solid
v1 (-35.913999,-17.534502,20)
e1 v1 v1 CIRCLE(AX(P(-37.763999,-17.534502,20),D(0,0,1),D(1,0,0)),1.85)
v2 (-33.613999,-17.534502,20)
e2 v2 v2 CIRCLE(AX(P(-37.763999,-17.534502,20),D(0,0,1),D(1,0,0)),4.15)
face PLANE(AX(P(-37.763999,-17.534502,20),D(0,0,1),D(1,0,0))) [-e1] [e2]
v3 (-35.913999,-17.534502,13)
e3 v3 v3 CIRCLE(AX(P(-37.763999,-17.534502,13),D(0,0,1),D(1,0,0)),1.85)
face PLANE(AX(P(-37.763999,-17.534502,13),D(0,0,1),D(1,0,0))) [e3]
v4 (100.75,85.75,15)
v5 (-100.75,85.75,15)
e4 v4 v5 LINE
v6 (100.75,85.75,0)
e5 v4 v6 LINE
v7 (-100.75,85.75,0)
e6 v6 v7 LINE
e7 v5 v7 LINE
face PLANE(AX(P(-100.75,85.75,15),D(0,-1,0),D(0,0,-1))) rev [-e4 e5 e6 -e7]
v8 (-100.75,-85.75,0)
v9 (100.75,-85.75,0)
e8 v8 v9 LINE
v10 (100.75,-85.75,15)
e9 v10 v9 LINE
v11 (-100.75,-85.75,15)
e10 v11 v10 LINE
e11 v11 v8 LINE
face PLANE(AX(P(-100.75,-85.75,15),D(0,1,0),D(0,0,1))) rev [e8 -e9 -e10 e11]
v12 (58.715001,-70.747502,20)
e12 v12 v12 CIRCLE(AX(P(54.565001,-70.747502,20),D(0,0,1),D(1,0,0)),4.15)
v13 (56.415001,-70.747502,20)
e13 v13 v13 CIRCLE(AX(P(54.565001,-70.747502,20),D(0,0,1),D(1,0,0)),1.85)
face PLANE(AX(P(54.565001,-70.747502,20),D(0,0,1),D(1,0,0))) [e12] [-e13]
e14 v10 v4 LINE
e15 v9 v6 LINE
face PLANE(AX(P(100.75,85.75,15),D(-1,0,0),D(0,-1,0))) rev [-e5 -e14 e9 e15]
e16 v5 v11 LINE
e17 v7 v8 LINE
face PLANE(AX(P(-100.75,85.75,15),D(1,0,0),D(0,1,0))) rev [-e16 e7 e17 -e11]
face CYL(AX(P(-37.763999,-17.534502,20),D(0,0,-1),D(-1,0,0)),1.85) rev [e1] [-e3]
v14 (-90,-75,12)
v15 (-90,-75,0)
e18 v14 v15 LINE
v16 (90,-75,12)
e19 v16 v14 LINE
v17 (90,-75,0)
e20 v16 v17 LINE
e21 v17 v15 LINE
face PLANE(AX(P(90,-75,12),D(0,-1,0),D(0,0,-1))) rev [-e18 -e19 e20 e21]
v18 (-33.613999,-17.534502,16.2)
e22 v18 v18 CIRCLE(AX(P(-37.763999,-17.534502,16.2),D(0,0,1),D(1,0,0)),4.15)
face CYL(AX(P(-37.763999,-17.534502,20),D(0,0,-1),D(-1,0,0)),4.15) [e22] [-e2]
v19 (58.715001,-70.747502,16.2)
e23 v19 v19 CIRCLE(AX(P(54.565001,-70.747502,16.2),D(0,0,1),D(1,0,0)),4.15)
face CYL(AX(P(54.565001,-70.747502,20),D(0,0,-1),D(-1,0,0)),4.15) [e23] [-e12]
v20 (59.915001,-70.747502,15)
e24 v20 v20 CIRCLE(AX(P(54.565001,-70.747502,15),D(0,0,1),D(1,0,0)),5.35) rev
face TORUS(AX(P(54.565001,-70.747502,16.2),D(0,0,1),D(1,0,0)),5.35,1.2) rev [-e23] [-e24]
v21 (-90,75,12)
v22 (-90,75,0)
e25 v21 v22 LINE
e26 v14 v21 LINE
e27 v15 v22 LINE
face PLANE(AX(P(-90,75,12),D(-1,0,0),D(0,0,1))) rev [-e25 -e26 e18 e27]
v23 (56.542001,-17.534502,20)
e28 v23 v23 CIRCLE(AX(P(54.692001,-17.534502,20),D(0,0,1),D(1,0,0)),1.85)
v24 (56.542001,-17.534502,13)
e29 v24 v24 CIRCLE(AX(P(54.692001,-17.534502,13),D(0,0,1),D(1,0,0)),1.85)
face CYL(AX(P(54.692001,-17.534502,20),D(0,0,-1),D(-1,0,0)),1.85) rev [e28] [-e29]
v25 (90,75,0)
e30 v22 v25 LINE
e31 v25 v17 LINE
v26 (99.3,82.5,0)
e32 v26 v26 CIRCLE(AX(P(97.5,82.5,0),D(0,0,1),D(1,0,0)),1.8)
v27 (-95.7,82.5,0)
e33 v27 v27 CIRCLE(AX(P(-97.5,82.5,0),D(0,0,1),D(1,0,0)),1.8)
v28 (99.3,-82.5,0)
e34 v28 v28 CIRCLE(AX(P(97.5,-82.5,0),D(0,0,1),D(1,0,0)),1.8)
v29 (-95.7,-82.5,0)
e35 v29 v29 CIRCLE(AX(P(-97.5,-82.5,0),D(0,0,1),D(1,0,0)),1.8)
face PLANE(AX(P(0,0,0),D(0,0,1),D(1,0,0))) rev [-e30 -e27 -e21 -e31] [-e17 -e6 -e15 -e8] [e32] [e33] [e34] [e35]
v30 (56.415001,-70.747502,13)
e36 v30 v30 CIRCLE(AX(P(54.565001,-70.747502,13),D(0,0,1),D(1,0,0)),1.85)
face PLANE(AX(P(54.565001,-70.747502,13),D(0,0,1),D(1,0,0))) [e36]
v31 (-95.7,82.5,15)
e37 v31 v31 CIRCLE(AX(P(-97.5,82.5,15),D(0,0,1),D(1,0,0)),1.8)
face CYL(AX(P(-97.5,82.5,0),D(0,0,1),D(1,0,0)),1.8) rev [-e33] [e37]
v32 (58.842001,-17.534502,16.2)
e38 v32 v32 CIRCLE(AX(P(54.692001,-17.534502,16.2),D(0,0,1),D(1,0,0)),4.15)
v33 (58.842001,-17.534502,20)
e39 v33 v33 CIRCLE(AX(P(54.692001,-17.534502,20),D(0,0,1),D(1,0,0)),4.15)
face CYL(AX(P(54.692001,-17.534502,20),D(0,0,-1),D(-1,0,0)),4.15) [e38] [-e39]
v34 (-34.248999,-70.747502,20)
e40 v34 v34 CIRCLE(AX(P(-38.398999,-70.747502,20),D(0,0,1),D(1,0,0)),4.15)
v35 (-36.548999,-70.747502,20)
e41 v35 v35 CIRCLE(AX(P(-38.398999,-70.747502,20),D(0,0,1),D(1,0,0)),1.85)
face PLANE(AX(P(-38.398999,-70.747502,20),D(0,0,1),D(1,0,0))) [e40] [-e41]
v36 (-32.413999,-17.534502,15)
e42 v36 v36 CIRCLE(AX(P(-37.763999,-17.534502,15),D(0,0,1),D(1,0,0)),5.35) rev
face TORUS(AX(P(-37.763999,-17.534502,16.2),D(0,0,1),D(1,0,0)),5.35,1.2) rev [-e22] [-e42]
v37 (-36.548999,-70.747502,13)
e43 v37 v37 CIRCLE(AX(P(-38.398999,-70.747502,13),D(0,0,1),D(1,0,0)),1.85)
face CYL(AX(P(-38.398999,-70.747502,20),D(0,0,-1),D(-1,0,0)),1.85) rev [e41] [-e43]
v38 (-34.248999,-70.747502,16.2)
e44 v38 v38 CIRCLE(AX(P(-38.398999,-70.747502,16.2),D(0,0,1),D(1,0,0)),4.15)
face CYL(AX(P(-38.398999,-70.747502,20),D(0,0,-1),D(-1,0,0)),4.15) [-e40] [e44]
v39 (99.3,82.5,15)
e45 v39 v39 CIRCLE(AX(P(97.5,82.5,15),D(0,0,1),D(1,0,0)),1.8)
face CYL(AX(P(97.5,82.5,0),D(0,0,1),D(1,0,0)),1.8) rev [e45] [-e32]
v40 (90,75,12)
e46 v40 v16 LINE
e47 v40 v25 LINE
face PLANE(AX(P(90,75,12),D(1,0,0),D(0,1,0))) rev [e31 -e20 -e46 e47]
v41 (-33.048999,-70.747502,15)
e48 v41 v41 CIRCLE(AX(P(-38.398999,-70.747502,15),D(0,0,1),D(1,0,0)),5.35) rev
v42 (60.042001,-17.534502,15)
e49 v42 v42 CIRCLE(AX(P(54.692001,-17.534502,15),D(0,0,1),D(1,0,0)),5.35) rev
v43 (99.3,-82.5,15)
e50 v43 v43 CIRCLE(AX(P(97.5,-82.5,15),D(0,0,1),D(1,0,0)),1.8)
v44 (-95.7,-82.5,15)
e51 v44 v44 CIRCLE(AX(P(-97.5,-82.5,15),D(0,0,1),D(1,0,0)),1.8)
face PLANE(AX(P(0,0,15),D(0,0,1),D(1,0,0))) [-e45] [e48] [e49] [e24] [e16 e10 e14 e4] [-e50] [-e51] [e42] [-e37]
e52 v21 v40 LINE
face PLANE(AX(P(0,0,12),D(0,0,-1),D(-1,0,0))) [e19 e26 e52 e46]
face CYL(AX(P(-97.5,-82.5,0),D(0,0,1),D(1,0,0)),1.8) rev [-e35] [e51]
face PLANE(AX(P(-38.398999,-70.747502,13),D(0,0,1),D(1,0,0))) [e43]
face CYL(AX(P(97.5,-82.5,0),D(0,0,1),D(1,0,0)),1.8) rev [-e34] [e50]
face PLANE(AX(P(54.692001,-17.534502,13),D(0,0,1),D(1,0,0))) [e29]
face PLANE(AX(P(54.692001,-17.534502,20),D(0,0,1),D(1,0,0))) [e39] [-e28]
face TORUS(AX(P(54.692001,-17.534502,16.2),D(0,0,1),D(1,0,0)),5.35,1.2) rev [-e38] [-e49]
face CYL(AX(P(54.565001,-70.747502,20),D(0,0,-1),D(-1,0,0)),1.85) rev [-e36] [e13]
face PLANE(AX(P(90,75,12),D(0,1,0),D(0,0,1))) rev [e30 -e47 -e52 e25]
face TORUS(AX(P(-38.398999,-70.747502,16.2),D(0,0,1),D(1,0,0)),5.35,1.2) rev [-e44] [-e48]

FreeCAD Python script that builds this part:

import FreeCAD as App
import Part
import Sketcher

V = App.Vector
Q = App.Units.Quantity


def edges_at(feature, points):
    """Names of the edges that pass closest to the given points."""
    edges = feature.Shape.Edges
    near = lambda p: min(range(len(edges)), key=lambda i: edges[i].distToShape(Part.Vertex(*p))[0])
    return sorted({f"Edge{near(p) + 1}" for p in points})

doc = App.newDocument("Part")
body = doc.addObject("PartDesign::Body", "Body")

# Sketch on XY plane
sketch1 = body.newObject("Sketcher::SketchObject", "Sketch")
sketch1.AttachmentSupport = (doc.getObject("XY_Plane"), [""])
sketch1.MapMode = "FlatFace"
sketch1.addGeometry([
    Part.LineSegment(V(-101, 86, 0), V(-101, -86, 0)),
    Part.LineSegment(V(-101, -86, 0), V(101, -86, 0)),
    Part.LineSegment(V(101, -86, 0), V(101, 86, 0)),
    Part.LineSegment(V(101, 86, 0), V(-101, 86, 0)),
], False)
sketch1.addConstraint([
    Sketcher.Constraint("Coincident", 0, 2, 1, 1),
    Sketcher.Constraint("Coincident", 1, 2, 2, 1),
    Sketcher.Constraint("Coincident", 2, 2, 3, 1),
    Sketcher.Constraint("Coincident", 3, 2, 0, 1),
    Sketcher.Constraint("Vertical", 0),
    Sketcher.Constraint("Horizontal", 1),
    Sketcher.Constraint("Vertical", 2),
    Sketcher.Constraint("Horizontal", 3),
    Sketcher.Constraint("Symmetric", 0, 2, 2, 2, -1, 1),
    Sketcher.Constraint("DistanceX", 1, 1, 1, 2, Q("201.5 mm")),
    Sketcher.Constraint("DistanceY", 0, 2, 0, 1, Q("171.5 mm")),
])
pad1 = body.newObject("PartDesign::Pad", "Pad")
pad1.Profile = sketch1
pad1.Length = 15

# Sketch on XY plane
sketch2 = body.newObject("Sketcher::SketchObject", "Sketch001")
sketch2.AttachmentSupport = (doc.getObject("XY_Plane"), [""])
sketch2.MapMode = "FlatFace"
sketch2.AttachmentOffset = App.Placement(V(0, 0, 15), App.Rotation())
sketch2.addGeometry([
    Part.Circle(V(-97.5, 82.5, 0), V(0, 0, 1), 1.8),
    Part.Circle(V(97.5, 82.5, 0), V(0, 0, 1), 1.8),
    Part.Circle(V(97.5, -82.5, 0), V(0, 0, 1), 1.8),
    Part.Circle(V(-97.5, -82.5, 0), V(0, 0, 1), 1.8),
], False)
sketch2.addConstraint([
    Sketcher.Constraint("Equal", 0, 1),
    Sketcher.Constraint("Equal", 1, 2),
    Sketcher.Constraint("Equal", 2, 3),
    Sketcher.Constraint("Symmetric", 0, 3, 2, 3, -1, 1),
    Sketcher.Constraint("Symmetric", 1, 3, 3, 3, -1, 1),
    Sketcher.Constraint("Symmetric", 0, 3, 1, 3, -2),
    Sketcher.Constraint("Diameter", 0, Q("3.6 mm")),
    Sketcher.Constraint("DistanceX", 0, 3, 1, 3, Q("195 mm")),
    Sketcher.Constraint("DistanceY", 2, 3, 1, 3, Q("165 mm")),
])
pocket1 = body.newObject("PartDesign::Pocket", "Pocket")
pocket1.Profile = sketch2
pocket1.Length = 15

# Sketch on XY plane
sketch3 = body.newObject("Sketcher::SketchObject", "Sketch002")
sketch3.AttachmentSupport = (doc.getObject("XY_Plane"), [""])
sketch3.MapMode = "FlatFace"
sketch3.AttachmentOffset = App.Placement(V(0, 0, 15), App.Rotation())
sketch3.addGeometry([
    Part.Circle(V(-37.8, -17.5, 0), V(0, 0, 1), 4.2),  # 0
    Part.Circle(V(-37.8, -17.5, 0), V(0, 0, 1), 1.9),  # 1
    Part.Circle(V(54.7, -17.5, 0), V(0, 0, 1), 4.2),  # 2
    Part.Circle(V(54.7, -17.5, 0), V(0, 0, 1), 1.9),  # 3
    Part.Circle(V(54.6, -70.7, 0), V(0, 0, 1), 4.2),  # 4
    Part.Circle(V(54.6, -70.7, 0), V(0, 0, 1), 1.9),  # 5
    Part.Circle(V(-38.4, -70.7, 0), V(0, 0, 1), 4.2),  # 6
    Part.Circle(V(-38.4, -70.7, 0), V(0, 0, 1), 1.9),  # 7
], False)
sketch3.addConstraint([
    Sketcher.Constraint("Coincident", 1, 3, 0, 3),
    Sketcher.Constraint("Coincident", 3, 3, 2, 3),
    Sketcher.Constraint("Coincident", 5, 3, 4, 3),
    Sketcher.Constraint("Coincident", 7, 3, 6, 3),
    Sketcher.Constraint("Equal", 0, 2),
    Sketcher.Constraint("Equal", 1, 3),
    Sketcher.Constraint("Equal", 2, 4),
    Sketcher.Constraint("Equal", 3, 5),
    Sketcher.Constraint("Equal", 4, 6),
    Sketcher.Constraint("Equal", 5, 7),
    Sketcher.Constraint("Horizontal", 1, 3, 2, 3),
    Sketcher.Constraint("Horizontal", 5, 3, 6, 3),
    Sketcher.Constraint("Diameter", 0, Q("8.3 mm")),
    Sketcher.Constraint("Diameter", 1, Q("3.7 mm")),
    Sketcher.Constraint("DistanceX", 0, 3, -1, 1, Q("37.763999 mm")),
    Sketcher.Constraint("DistanceX", -1, 1, 2, 3, Q("54.692001 mm")),
    Sketcher.Constraint("DistanceX", -1, 1, 4, 3, Q("54.565001 mm")),
    Sketcher.Constraint("DistanceX", 6, 3, -1, 1, Q("38.398999 mm")),
    Sketcher.Constraint("DistanceY", 4, 3, 2, 3, Q("53.213 mm")),
    Sketcher.Constraint("DistanceY", 0, 3, -1, 1, Q("17.534502 mm")),
])
pad2 = body.newObject("PartDesign::Pad", "Pad001")
pad2.Profile = sketch3
pad2.Length = 5

# Sketch on XY plane
sketch4 = body.newObject("Sketcher::SketchObject", "Sketch003")
sketch4.AttachmentSupport = (doc.getObject("XY_Plane"), [""])
sketch4.MapMode = "FlatFace"
sketch4.addGeometry([
    Part.LineSegment(V(90, 75, 0), V(90, -75, 0)),
    Part.LineSegment(V(90, -75, 0), V(-90, -75, 0)),
    Part.LineSegment(V(-90, -75, 0), V(-90, 75, 0)),
    Part.LineSegment(V(-90, 75, 0), V(90, 75, 0)),
], False)
sketch4.addConstraint([
    Sketcher.Constraint("Coincident", 0, 2, 1, 1),
    Sketcher.Constraint("Coincident", 1, 2, 2, 1),
    Sketcher.Constraint("Coincident", 2, 2, 3, 1),
    Sketcher.Constraint("Coincident", 3, 2, 0, 1),
    Sketcher.Constraint("Vertical", 0),
    Sketcher.Constraint("Horizontal", 1),
    Sketcher.Constraint("Vertical", 2),
    Sketcher.Constraint("Horizontal", 3),
    Sketcher.Constraint("Symmetric", 0, 2, 2, 2, -1, 1),
    Sketcher.Constraint("DistanceX", 1, 2, 1, 1, Q("180 mm")),
    Sketcher.Constraint("DistanceY", 0, 2, 0, 1, Q("150 mm")),
])
pocket2 = body.newObject("PartDesign::Pocket", "Pocket001")
pocket2.Profile = sketch4
pocket2.Length = 12
pocket2.Reversed = True
doc.recompute()

fillet = body.newObject("PartDesign::Fillet", "Fillet")
fillet.Base = (pocket2, edges_at(pocket2, [
    (-42.549, -70.748, 15),
    (50.415, -70.748, 15),
    (50.542, -17.535, 15),
    (-41.914, -17.535, 15),
]))
fillet.Radius = 1.2

# Sketch on XY plane
sketch5 = body.newObject("Sketcher::SketchObject", "Sketch004")
sketch5.AttachmentSupport = (doc.getObject("XY_Plane"), [""])
sketch5.MapMode = "FlatFace"
sketch5.AttachmentOffset = App.Placement(V(0, 0, 13), App.Rotation())
sketch5.addGeometry([
    Part.Circle(V(-37.8, -17.5, 0), V(0, 0, 1), 1.9),
    Part.Circle(V(-38.4, -70.7, 0), V(0, 0, 1), 1.9),
    Part.Circle(V(54.6, -70.7, 0), V(0, 0, 1), 1.9),
    Part.Circle(V(54.7, -17.5, 0), V(0, 0, 1), 1.9),
], False)
sketch5.addConstraint([
    Sketcher.Constraint("Equal", 0, 1),
    Sketcher.Constraint("Equal", 1, 2),
    Sketcher.Constraint("Equal", 2, 3),
    Sketcher.Constraint("Horizontal", 1, 3, 2, 3),
    Sketcher.Constraint("Horizontal", 0, 3, 3, 3),
    Sketcher.Constraint("Diameter", 0, Q("3.7 mm")),
    Sketcher.Constraint("DistanceX", 0, 3, -1, 1, Q("37.763999 mm")),
    Sketcher.Constraint("DistanceX", 1, 3, -1, 1, Q("38.398999 mm")),
    Sketcher.Constraint("DistanceX", -1, 1, 2, 3, Q("54.565001 mm")),
    Sketcher.Constraint("DistanceX", -1, 1, 3, 3, Q("54.692001 mm")),
    Sketcher.Constraint("DistanceY", 1, 3, 0, 3, Q("53.213 mm")),
    Sketcher.Constraint("DistanceY", 0, 3, -1, 1, Q("17.534502 mm")),
])
pocket3 = body.newObject("PartDesign::Pocket", "Pocket002")
pocket3.Profile = sketch5
pocket3.Length = 2
pocket3.Reversed = True

doc.recompute()
